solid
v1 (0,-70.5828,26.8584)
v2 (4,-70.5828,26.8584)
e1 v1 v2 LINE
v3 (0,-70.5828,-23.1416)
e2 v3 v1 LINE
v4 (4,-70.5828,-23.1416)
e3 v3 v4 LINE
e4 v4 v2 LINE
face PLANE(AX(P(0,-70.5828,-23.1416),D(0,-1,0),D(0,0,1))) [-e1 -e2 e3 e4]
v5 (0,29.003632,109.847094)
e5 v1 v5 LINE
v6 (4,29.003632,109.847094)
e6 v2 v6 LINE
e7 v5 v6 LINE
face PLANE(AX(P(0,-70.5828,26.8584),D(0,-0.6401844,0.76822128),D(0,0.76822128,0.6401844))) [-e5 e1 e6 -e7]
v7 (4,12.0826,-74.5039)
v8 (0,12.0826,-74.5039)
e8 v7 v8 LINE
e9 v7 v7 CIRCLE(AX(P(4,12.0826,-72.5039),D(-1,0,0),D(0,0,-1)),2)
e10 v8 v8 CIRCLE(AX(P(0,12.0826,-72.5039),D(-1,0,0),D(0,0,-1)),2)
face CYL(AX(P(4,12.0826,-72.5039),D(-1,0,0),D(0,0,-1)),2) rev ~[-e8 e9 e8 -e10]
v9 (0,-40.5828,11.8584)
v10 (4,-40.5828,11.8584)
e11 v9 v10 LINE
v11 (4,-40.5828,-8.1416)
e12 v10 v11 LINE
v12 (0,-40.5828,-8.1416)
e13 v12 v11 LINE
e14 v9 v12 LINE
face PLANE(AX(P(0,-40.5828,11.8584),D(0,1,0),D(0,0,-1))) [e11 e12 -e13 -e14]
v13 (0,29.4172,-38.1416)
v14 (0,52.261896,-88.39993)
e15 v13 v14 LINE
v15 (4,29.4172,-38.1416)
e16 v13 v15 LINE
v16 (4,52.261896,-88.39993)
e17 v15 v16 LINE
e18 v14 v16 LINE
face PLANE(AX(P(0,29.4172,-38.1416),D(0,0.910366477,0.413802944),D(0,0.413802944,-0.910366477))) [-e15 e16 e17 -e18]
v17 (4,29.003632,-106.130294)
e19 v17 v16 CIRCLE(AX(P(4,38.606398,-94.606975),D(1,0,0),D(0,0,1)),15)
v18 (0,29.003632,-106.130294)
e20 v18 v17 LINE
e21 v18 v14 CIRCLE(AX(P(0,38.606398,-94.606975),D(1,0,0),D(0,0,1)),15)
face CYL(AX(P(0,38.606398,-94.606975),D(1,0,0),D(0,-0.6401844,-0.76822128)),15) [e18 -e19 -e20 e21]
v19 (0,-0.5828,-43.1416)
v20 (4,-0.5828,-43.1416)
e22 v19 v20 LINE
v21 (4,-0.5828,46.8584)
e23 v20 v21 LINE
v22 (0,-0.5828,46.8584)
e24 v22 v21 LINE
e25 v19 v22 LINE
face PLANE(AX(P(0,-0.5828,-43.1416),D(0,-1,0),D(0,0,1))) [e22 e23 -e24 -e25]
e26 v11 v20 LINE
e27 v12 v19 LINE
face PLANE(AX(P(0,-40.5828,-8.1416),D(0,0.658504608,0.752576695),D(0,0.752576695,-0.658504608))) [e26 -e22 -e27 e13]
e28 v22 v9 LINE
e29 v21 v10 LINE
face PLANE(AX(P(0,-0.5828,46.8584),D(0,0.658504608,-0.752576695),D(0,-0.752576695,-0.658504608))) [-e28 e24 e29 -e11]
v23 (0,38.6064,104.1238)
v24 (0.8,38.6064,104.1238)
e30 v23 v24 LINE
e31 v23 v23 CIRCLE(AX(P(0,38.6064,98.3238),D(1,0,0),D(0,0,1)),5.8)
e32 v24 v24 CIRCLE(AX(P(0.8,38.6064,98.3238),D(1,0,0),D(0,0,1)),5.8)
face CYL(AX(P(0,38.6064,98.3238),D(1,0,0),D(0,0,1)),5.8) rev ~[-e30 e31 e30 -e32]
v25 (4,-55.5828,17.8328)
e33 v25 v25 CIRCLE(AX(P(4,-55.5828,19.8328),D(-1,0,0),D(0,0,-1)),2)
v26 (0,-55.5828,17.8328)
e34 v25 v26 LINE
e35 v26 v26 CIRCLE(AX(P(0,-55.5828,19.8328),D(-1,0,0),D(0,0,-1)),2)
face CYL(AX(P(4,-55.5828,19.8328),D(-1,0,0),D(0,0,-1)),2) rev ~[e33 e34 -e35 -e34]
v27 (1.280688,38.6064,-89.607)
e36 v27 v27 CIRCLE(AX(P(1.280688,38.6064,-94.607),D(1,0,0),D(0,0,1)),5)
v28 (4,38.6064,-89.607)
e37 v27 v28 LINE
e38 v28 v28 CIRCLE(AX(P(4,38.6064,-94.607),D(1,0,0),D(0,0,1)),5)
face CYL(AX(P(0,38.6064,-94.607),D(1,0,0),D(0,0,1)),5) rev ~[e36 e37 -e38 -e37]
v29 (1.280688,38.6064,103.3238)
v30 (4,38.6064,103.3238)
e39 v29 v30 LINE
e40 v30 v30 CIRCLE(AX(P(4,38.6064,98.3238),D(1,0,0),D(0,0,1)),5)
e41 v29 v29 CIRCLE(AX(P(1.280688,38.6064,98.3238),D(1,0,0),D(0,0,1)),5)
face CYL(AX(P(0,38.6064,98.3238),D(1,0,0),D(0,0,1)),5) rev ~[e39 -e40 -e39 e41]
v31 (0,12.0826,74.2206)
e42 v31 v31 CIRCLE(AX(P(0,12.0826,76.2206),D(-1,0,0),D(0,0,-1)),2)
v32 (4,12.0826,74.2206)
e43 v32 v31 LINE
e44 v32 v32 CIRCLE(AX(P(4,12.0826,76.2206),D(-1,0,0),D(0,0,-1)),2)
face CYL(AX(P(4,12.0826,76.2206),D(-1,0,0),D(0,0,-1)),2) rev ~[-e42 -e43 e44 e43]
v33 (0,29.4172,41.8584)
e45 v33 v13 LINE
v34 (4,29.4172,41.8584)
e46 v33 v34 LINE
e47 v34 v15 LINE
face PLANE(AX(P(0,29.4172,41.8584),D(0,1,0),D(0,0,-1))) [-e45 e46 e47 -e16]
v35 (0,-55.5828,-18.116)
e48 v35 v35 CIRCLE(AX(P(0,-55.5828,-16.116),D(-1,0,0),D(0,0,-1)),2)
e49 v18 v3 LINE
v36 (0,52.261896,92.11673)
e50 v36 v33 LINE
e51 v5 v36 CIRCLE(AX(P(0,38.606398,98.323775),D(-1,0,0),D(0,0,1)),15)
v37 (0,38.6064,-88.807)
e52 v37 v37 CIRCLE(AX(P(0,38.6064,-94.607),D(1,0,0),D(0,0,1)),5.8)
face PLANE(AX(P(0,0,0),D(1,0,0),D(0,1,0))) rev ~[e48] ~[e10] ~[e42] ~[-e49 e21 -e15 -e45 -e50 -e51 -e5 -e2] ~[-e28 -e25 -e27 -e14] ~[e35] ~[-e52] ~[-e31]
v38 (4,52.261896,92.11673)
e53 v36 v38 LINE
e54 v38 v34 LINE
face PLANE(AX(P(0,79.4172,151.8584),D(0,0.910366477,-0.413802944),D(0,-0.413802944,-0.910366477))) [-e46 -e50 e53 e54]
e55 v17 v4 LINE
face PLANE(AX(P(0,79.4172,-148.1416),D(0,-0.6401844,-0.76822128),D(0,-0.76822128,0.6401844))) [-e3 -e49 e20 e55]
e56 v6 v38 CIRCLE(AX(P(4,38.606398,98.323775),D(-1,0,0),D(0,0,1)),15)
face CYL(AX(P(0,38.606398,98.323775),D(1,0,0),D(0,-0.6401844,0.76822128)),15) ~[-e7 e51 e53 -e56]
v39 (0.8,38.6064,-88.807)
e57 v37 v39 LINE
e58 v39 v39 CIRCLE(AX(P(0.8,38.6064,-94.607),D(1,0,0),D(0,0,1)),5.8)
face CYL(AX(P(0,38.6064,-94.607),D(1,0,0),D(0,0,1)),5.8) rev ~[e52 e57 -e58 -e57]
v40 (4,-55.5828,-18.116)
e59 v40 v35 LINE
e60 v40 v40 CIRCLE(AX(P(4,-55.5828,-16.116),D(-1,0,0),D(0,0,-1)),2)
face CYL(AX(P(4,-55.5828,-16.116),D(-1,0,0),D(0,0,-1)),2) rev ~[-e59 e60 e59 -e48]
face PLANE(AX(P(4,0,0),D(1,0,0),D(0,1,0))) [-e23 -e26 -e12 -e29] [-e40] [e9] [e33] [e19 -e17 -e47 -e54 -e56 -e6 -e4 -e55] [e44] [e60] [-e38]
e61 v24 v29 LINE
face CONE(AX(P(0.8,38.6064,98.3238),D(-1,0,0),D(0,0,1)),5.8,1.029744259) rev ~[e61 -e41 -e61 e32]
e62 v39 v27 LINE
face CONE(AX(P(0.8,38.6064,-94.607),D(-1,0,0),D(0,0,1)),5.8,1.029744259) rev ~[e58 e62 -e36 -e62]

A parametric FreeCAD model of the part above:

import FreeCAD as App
import Part
import Sketcher
Q = App.Units.Quantity


def edges_at(feature, points):
    """Names of the edges that pass closest to the given points."""
    edges = feature.Shape.Edges
    near = lambda p: min(range(len(edges)), key=lambda i: edges[i].distToShape(Part.Vertex(*p))[0])
    return sorted({f"Edge{near(p) + 1}" for p in points})

doc = App.newDocument("Part")
body = doc.addObject("PartDesign::Body", "Body")

sketch1 = doc.addObject("Sketcher::SketchObject", "Sketch")
body.addObject(sketch1)
sketch1.AttachmentSupport = (doc.YZ_Plane, [""])
sketch1.MapMode = "FlatFace"
sketch1.addGeometry([
    Part.LineSegment(App.Vector(-71, -23, 0), App.Vector(79, -148, 0)),
    Part.LineSegment(App.Vector(79, -148, 0), App.Vector(29, -38, 0)),
    Part.LineSegment(App.Vector(29, -38, 0), App.Vector(29, 42, 0)),
    Part.LineSegment(App.Vector(29, 42, 0), App.Vector(79, 152, 0)),
    Part.LineSegment(App.Vector(79, 152, 0), App.Vector(-71, 27, 0)),
    Part.LineSegment(App.Vector(-71, 27, 0), App.Vector(-71, -23, 0)),
    Part.LineSegment(App.Vector(-1, 47, 0), App.Vector(-1, -43, 0)),
    Part.LineSegment(App.Vector(-1, -43, 0), App.Vector(-41, -8, 0)),
    Part.LineSegment(App.Vector(-41, -8, 0), App.Vector(-41, 12, 0)),
    Part.LineSegment(App.Vector(-41, 12, 0), App.Vector(-1, 47, 0)),
], False)
sketch1.addConstraint([
    Sketcher.Constraint("Coincident", 0, 2, 1, 1),
    Sketcher.Constraint("Coincident", 1, 2, 2, 1),
    Sketcher.Constraint("Coincident", 2, 2, 3, 1),
    Sketcher.Constraint("Coincident", 3, 2, 4, 1),
    Sketcher.Constraint("Coincident", 4, 2, 5, 1),
    Sketcher.Constraint("Coincident", 5, 2, 0, 1),
    Sketcher.Constraint("Coincident", 6, 2, 7, 1),
    Sketcher.Constraint("Coincident", 7, 2, 8, 1),
    Sketcher.Constraint("Coincident", 8, 2, 9, 1),
    Sketcher.Constraint("Coincident", 9, 2, 6, 1),
    Sketcher.Constraint("Vertical", 2),
    Sketcher.Constraint("Vertical", 5),
    Sketcher.Constraint("Vertical", 6),
    Sketcher.Constraint("Vertical", 8),
    Sketcher.Constraint("Vertical", 0, 2, 3, 2),
    Sketcher.Constraint("Equal", 1, 3),
    Sketcher.Constraint("Equal", 0, 4),
    Sketcher.Constraint("Equal", 7, 9),
    Sketcher.Constraint("DistanceY", 2, 1, 2, 2, Q("80 mm")),
    Sketcher.Constraint("DistanceY", 5, 2, 5, 1, Q("50 mm")),
    Sketcher.Constraint("DistanceY", 6, 2, 6, 1, Q("90 mm")),
    Sketcher.Constraint("DistanceY", 8, 1, 8, 2, Q("20 mm")),
    Sketcher.Constraint("DistanceX", 1, 2, 0, 2, Q("50 mm")),
    Sketcher.Constraint("DistanceY", 0, 2, 3, 2, Q("300 mm")),
    Sketcher.Constraint("DistanceX", 4, 2, 3, 2, Q("150 mm")),
    Sketcher.Constraint("DistanceX", 6, 2, 1, 2, Q("30 mm")),
    Sketcher.Constraint("DistanceY", 6, 2, 5, 2, Q("20 mm")),
    Sketcher.Constraint("DistanceX", 5, 2, 7, 2, Q("30 mm")),
    Sketcher.Constraint("DistanceX", -1, 1, 0, 2, Q("79.4172 mm")),
    Sketcher.Constraint("DistanceY", 0, 2, -1, 1, Q("148.1416 mm")),
])
pad1 = doc.addObject("PartDesign::Pad", "Pad")
body.addObject(pad1)
pad1.Profile = sketch1
pad1.Length = 4
doc.recompute()

fillet = doc.addObject("PartDesign::Fillet", "Fillet")
body.addObject(fillet)
fillet.Base = (pad1, edges_at(pad1, [(2, 79.417, -148.142), (2, 79.417, 151.858)]))
fillet.Radius = 15

sketch2 = doc.addObject("Sketcher::SketchObject", "Sketch001")
body.addObject(sketch2)
sketch2.AttachmentSupport = (doc.YZ_Plane, [""])
sketch2.MapMode = "FlatFace"
sketch2.addGeometry(Part.Circle(App.Vector(39, -95, 0), App.Vector(0, 0, 1), 5), False)
sketch2.addConstraint([
    Sketcher.Constraint("Diameter", 0, Q("10 mm")),
    Sketcher.Constraint("DistanceY", 0, 3, -1, 1, Q("94.607 mm")),
    Sketcher.Constraint("DistanceX", -1, 1, 0, 3, Q("38.6064 mm")),
])
doc.recompute()
hole = doc.addObject("PartDesign::Hole", "Hole")
body.addObject(hole)
hole.Profile = sketch2
hole.ThreadType = "None"
hole.Diameter = 10
hole.DepthType = "ThroughAll"
hole.Reversed = True

sketch3 = doc.addObject("Sketcher::SketchObject", "Sketch002")
body.addObject(sketch3)
sketch3.AttachmentSupport = (doc.YZ_Plane, [""])
sketch3.MapMode = "FlatFace"
sketch3.addGeometry(Part.Circle(App.Vector(39, 98, 0), App.Vector(0, 0, 1), 5), False)
sketch3.addConstraint([
    Sketcher.Constraint("Diameter", 0, Q("10 mm")),
    Sketcher.Constraint("DistanceX", -1, 1, 0, 3, Q("38.6064 mm")),
    Sketcher.Constraint("DistanceY", -1, 1, 0, 3, Q("98.3238 mm")),
])
doc.recompute()
hole2 = doc.addObject("PartDesign::Hole", "Hole001")
body.addObject(hole2)
hole2.Profile = sketch3
hole2.ThreadType = "None"
hole2.Diameter = 10
hole2.DepthType = "ThroughAll"
hole2.Reversed = True

sketch4 = doc.addObject("Sketcher::SketchObject", "Sketch003")
body.addObject(sketch4)
sketch4.AttachmentSupport = (doc.YZ_Plane, [""])
sketch4.MapMode = "FlatFace"
sketch4.addGeometry(Part.Circle(App.Vector(39, -95, 0), App.Vector(0, 0, 1), 6), False)
sketch4.addConstraint([
    Sketcher.Constraint("Diameter", 0, Q("11.6 mm")),
    Sketcher.Constraint("DistanceY", 0, 3, -1, 1, Q("94.607 mm")),
    Sketcher.Constraint("DistanceX", -1, 1, 0, 3, Q("38.6064 mm")),
])
doc.recompute()
hole3 = doc.addObject("PartDesign::Hole", "Hole002")
body.addObject(hole3)
hole3.Profile = sketch4
hole3.ThreadType = "None"
hole3.Diameter = 11.6
hole3.DepthType = "Dimension"
hole3.Depth = 0.8
hole3.DrillPoint = "Angled"
hole3.DrillPointAngle = 118
hole3.Reversed = True

sketch5 = doc.addObject("Sketcher::SketchObject", "Sketch004")
body.addObject(sketch5)
sketch5.AttachmentSupport = (doc.YZ_Plane, [""])
sketch5.MapMode = "FlatFace"
sketch5.addGeometry(Part.Circle(App.Vector(39, 98, 0), App.Vector(0, 0, 1), 6), False)
sketch5.addConstraint([
    Sketcher.Constraint("Diameter", 0, Q("11.6 mm")),
    Sketcher.Constraint("DistanceX", -1, 1, 0, 3, Q("38.6064 mm")),
    Sketcher.Constraint("DistanceY", -1, 1, 0, 3, Q("98.3238 mm")),
])
doc.recompute()
hole4 = doc.addObject("PartDesign::Hole", "Hole003")
body.addObject(hole4)
hole4.Profile = sketch5
hole4.ThreadType = "None"
hole4.Diameter = 11.6
hole4.DepthType = "Dimension"
hole4.Depth = 0.8
hole4.DrillPoint = "Angled"
hole4.DrillPointAngle = 118
hole4.Reversed = True

sketch6 = doc.addObject("Sketcher::SketchObject", "Sketch005")
body.addObject(sketch6)
sketch6.AttachmentSupport = (doc.YZ_Plane, [""])
sketch6.MapMode = "FlatFace"
sketch6.AttachmentOffset = App.Placement(App.Vector(0, 0, 4), App.Rotation())
sketch6.addGeometry(Part.Circle(App.Vector(12.1, 76.2, 0), App.Vector(0, 0, 1), 2), False)
sketch6.addConstraint([
    Sketcher.Constraint("Diameter", 0, Q("4 mm")),
    Sketcher.Constraint("DistanceX", -1, 1, 0, 3, Q("12.0826 mm")),
    Sketcher.Constraint("DistanceY", -1, 1, 0, 3, Q("76.2206 mm")),
])
doc.recompute()
hole5 = doc.addObject("PartDesign::Hole", "Hole004")
body.addObject(hole5)
hole5.Profile = sketch6
hole5.ThreadType = "None"
hole5.Diameter = 4
hole5.DepthType = "Dimension"
hole5.Depth = 8
hole5.DrillPoint = "Flat"

sketch7 = doc.addObject("Sketcher::SketchObject", "Sketch006")
body.addObject(sketch7)
sketch7.AttachmentSupport = (doc.YZ_Plane, [""])
sketch7.MapMode = "FlatFace"
sketch7.AttachmentOffset = App.Placement(App.Vector(0, 0, 4), App.Rotation())
sketch7.addGeometry(Part.Circle(App.Vector(12.1, -72.5, 0), App.Vector(0, 0, 1), 2), False)
sketch7.addConstraint([
    Sketcher.Constraint("Diameter", 0, Q("4 mm")),
    Sketcher.Constraint("DistanceY", 0, 3, -1, 1, Q("72.504 mm")),
    Sketcher.Constraint("DistanceX", -1, 1, 0, 3, Q("12.0826 mm")),
])
doc.recompute()
hole6 = doc.addObject("PartDesign::Hole", "Hole005")
body.addObject(hole6)
hole6.Profile = sketch7
hole6.ThreadType = "None"
hole6.Diameter = 4
hole6.DepthType = "Dimension"
hole6.Depth = 8
hole6.DrillPoint = "Flat"

sketch8 = doc.addObject("Sketcher::SketchObject", "Sketch007")
body.addObject(sketch8)
sketch8.AttachmentSupport = (doc.YZ_Plane, [""])
sketch8.MapMode = "FlatFace"
sketch8.AttachmentOffset = App.Placement(App.Vector(0, 0, 4), App.Rotation())
sketch8.addGeometry(Part.Circle(App.Vector(-55.6, -16.1, 0), App.Vector(0, 0, 1), 2), False)
sketch8.addConstraint([
    Sketcher.Constraint("Diameter", 0, Q("4 mm")),
    Sketcher.Constraint("DistanceY", 0, 3, -1, 1, Q("16.116 mm")),
    Sketcher.Constraint("DistanceX", 0, 3, -1, 1, Q("55.5828 mm")),
])
doc.recompute()
hole7 = doc.addObject("PartDesign::Hole", "Hole006")
body.addObject(hole7)
hole7.Profile = sketch8
hole7.ThreadType = "None"
hole7.Diameter = 4
hole7.DepthType = "Dimension"
hole7.Depth = 8
hole7.DrillPoint = "Flat"

sketch9 = doc.addObject("Sketcher::SketchObject", "Sketch008")
body.addObject(sketch9)
sketch9.AttachmentSupport = (doc.YZ_Plane, [""])
sketch9.MapMode = "FlatFace"
sketch9.AttachmentOffset = App.Placement(App.Vector(0, 0, 4), App.Rotation())
sketch9.addGeometry(Part.Circle(App.Vector(-55.6, 19.8, 0), App.Vector(0, 0, 1), 2), False)
sketch9.addConstraint([
    Sketcher.Constraint("Diameter", 0, Q("4 mm")),
    Sketcher.Constraint("DistanceX", 0, 3, -1, 1, Q("55.5828 mm")),
    Sketcher.Constraint("DistanceY", -1, 1, 0, 3, Q("19.8328 mm")),
])
doc.recompute()
hole8 = doc.addObject("PartDesign::Hole", "Hole007")
body.addObject(hole8)
hole8.Profile = sketch9
hole8.ThreadType = "None"
hole8.Diameter = 4
hole8.DepthType = "Dimension"
hole8.Depth = 8
hole8.DrillPoint = "Flat"

doc.recompute()
